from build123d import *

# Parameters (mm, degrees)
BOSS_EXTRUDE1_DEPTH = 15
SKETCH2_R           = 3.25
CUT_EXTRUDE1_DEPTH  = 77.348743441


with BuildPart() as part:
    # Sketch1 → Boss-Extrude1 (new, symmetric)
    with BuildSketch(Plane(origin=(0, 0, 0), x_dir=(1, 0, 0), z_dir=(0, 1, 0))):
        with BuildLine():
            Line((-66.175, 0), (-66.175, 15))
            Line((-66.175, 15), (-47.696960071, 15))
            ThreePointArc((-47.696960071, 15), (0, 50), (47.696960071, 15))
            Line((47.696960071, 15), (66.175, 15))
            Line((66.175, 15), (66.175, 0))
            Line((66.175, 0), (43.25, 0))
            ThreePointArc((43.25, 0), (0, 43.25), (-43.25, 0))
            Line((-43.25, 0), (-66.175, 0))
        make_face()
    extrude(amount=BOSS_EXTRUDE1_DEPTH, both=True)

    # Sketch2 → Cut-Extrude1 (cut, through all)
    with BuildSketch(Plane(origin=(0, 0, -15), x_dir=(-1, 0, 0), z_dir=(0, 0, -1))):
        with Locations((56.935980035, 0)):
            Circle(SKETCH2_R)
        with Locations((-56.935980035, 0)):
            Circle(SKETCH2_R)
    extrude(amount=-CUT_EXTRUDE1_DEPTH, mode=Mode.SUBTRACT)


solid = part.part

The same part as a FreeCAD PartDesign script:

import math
import FreeCAD as App
import Part
import Sketcher

V = App.Vector
Q = App.Units.Quantity

doc = App.newDocument("Part")
body = doc.addObject("PartDesign::Body", "Body")

sketch1 = body.newObject("Sketcher::SketchObject", "Sketch")
sketch1.AttachmentSupport = (doc.getObject("XZ_Plane"), [""])
sketch1.MapMode = "FlatFace"
sketch1.addGeometry([
    Part.LineSegment(V(-66, -15, 0), V(-66, 0, 0)),
    Part.LineSegment(V(-66, 0, 0), V(-43, 0, 0)),
    Part.ArcOfCircle(Part.Circle(V(0, 0, 0), V(0, 0, 1), 43), math.radians(180), math.radians(360)),
    Part.LineSegment(V(43, 0, 0), V(66, 0, 0)),
    Part.LineSegment(V(66, 0, 0), V(66, -15, 0)),
    Part.LineSegment(V(66, -15, 0), V(48, -15, 0)),
    Part.ArcOfCircle(Part.Circle(V(0, 0, 0), V(0, 0, 1), 50), math.radians(-163), math.radians(-17)),
    Part.LineSegment(V(-48, -15, 0), V(-66, -15, 0)),
], False)
sketch1.addConstraint([
    Sketcher.Constraint("Coincident", 0, 2, 1, 1),
    Sketcher.Constraint("Coincident", 1, 2, 2, 1),
    Sketcher.Constraint("Coincident", 2, 2, 3, 1),
    Sketcher.Constraint("Coincident", 3, 2, 4, 1),
    Sketcher.Constraint("Coincident", 4, 2, 5, 1),
    Sketcher.Constraint("Coincident", 5, 2, 6, 2),
    Sketcher.Constraint("Coincident", 6, 1, 7, 1),
    Sketcher.Constraint("Coincident", 7, 2, 0, 1),
    Sketcher.Constraint("Vertical", 0),
    Sketcher.Constraint("Horizontal", 1),
    Sketcher.Constraint("Horizontal", 3),
    Sketcher.Constraint("Vertical", 4),
    Sketcher.Constraint("Horizontal", 5),
    Sketcher.Constraint("Horizontal", 7),
    Sketcher.Constraint("Coincident", 2, 3, -1, 1),
    Sketcher.Constraint("Coincident", 6, 3, -1, 1),
    Sketcher.Constraint("Symmetric", 0, 2, 3, 2, -1, 1),
    Sketcher.Constraint("PointOnObject", 0, 2, -1),
    Sketcher.Constraint("Horizontal", 5, 2, 6, 1),
    Sketcher.Constraint("Radius", 6, Q("50 mm")),
    Sketcher.Constraint("DistanceY", 0, 1, 0, 2, Q("15 mm")),
    Sketcher.Constraint("Radius", 2, Q("43.25 mm")),
    Sketcher.Constraint("DistanceX", 1, 1, 1, 2, Q("22.925 mm")),
])
pad1 = body.newObject("PartDesign::Pad", "Pad")
pad1.Profile = sketch1
pad1.Length = 30
pad1.Midplane = True

sketch2 = body.newObject("Sketcher::SketchObject", "Sketch001")
sketch2.AttachmentSupport = (doc.getObject("XY_Plane"), [""])
sketch2.MapMode = "FlatFace"
sketch2.AttachmentOffset = App.Placement(V(0, 0, -15), App.Rotation())
sketch2.addGeometry([
    Part.Circle(V(-56.9, 0, 0), V(0, 0, 1), 3.2),
    Part.Circle(V(56.9, 0, 0), V(0, 0, 1), 3.2),
], False)
sketch2.addConstraint([
    Sketcher.Constraint("Equal", 0, 1),
    Sketcher.Constraint("Symmetric", 0, 3, 1, 3, -1, 1),
    Sketcher.Constraint("PointOnObject", 0, 3, -1),
    Sketcher.Constraint("Diameter", 0, Q("6.5 mm")),
    Sketcher.Constraint("DistanceX", 0, 3, -1, 1, Q("56.93598 mm")),
])
pocket1 = body.newObject("PartDesign::Pocket", "Pocket")
pocket1.Profile = sketch2
pocket1.Type = "ThroughAll"
pocket1.Reversed = True

doc.recompute()
